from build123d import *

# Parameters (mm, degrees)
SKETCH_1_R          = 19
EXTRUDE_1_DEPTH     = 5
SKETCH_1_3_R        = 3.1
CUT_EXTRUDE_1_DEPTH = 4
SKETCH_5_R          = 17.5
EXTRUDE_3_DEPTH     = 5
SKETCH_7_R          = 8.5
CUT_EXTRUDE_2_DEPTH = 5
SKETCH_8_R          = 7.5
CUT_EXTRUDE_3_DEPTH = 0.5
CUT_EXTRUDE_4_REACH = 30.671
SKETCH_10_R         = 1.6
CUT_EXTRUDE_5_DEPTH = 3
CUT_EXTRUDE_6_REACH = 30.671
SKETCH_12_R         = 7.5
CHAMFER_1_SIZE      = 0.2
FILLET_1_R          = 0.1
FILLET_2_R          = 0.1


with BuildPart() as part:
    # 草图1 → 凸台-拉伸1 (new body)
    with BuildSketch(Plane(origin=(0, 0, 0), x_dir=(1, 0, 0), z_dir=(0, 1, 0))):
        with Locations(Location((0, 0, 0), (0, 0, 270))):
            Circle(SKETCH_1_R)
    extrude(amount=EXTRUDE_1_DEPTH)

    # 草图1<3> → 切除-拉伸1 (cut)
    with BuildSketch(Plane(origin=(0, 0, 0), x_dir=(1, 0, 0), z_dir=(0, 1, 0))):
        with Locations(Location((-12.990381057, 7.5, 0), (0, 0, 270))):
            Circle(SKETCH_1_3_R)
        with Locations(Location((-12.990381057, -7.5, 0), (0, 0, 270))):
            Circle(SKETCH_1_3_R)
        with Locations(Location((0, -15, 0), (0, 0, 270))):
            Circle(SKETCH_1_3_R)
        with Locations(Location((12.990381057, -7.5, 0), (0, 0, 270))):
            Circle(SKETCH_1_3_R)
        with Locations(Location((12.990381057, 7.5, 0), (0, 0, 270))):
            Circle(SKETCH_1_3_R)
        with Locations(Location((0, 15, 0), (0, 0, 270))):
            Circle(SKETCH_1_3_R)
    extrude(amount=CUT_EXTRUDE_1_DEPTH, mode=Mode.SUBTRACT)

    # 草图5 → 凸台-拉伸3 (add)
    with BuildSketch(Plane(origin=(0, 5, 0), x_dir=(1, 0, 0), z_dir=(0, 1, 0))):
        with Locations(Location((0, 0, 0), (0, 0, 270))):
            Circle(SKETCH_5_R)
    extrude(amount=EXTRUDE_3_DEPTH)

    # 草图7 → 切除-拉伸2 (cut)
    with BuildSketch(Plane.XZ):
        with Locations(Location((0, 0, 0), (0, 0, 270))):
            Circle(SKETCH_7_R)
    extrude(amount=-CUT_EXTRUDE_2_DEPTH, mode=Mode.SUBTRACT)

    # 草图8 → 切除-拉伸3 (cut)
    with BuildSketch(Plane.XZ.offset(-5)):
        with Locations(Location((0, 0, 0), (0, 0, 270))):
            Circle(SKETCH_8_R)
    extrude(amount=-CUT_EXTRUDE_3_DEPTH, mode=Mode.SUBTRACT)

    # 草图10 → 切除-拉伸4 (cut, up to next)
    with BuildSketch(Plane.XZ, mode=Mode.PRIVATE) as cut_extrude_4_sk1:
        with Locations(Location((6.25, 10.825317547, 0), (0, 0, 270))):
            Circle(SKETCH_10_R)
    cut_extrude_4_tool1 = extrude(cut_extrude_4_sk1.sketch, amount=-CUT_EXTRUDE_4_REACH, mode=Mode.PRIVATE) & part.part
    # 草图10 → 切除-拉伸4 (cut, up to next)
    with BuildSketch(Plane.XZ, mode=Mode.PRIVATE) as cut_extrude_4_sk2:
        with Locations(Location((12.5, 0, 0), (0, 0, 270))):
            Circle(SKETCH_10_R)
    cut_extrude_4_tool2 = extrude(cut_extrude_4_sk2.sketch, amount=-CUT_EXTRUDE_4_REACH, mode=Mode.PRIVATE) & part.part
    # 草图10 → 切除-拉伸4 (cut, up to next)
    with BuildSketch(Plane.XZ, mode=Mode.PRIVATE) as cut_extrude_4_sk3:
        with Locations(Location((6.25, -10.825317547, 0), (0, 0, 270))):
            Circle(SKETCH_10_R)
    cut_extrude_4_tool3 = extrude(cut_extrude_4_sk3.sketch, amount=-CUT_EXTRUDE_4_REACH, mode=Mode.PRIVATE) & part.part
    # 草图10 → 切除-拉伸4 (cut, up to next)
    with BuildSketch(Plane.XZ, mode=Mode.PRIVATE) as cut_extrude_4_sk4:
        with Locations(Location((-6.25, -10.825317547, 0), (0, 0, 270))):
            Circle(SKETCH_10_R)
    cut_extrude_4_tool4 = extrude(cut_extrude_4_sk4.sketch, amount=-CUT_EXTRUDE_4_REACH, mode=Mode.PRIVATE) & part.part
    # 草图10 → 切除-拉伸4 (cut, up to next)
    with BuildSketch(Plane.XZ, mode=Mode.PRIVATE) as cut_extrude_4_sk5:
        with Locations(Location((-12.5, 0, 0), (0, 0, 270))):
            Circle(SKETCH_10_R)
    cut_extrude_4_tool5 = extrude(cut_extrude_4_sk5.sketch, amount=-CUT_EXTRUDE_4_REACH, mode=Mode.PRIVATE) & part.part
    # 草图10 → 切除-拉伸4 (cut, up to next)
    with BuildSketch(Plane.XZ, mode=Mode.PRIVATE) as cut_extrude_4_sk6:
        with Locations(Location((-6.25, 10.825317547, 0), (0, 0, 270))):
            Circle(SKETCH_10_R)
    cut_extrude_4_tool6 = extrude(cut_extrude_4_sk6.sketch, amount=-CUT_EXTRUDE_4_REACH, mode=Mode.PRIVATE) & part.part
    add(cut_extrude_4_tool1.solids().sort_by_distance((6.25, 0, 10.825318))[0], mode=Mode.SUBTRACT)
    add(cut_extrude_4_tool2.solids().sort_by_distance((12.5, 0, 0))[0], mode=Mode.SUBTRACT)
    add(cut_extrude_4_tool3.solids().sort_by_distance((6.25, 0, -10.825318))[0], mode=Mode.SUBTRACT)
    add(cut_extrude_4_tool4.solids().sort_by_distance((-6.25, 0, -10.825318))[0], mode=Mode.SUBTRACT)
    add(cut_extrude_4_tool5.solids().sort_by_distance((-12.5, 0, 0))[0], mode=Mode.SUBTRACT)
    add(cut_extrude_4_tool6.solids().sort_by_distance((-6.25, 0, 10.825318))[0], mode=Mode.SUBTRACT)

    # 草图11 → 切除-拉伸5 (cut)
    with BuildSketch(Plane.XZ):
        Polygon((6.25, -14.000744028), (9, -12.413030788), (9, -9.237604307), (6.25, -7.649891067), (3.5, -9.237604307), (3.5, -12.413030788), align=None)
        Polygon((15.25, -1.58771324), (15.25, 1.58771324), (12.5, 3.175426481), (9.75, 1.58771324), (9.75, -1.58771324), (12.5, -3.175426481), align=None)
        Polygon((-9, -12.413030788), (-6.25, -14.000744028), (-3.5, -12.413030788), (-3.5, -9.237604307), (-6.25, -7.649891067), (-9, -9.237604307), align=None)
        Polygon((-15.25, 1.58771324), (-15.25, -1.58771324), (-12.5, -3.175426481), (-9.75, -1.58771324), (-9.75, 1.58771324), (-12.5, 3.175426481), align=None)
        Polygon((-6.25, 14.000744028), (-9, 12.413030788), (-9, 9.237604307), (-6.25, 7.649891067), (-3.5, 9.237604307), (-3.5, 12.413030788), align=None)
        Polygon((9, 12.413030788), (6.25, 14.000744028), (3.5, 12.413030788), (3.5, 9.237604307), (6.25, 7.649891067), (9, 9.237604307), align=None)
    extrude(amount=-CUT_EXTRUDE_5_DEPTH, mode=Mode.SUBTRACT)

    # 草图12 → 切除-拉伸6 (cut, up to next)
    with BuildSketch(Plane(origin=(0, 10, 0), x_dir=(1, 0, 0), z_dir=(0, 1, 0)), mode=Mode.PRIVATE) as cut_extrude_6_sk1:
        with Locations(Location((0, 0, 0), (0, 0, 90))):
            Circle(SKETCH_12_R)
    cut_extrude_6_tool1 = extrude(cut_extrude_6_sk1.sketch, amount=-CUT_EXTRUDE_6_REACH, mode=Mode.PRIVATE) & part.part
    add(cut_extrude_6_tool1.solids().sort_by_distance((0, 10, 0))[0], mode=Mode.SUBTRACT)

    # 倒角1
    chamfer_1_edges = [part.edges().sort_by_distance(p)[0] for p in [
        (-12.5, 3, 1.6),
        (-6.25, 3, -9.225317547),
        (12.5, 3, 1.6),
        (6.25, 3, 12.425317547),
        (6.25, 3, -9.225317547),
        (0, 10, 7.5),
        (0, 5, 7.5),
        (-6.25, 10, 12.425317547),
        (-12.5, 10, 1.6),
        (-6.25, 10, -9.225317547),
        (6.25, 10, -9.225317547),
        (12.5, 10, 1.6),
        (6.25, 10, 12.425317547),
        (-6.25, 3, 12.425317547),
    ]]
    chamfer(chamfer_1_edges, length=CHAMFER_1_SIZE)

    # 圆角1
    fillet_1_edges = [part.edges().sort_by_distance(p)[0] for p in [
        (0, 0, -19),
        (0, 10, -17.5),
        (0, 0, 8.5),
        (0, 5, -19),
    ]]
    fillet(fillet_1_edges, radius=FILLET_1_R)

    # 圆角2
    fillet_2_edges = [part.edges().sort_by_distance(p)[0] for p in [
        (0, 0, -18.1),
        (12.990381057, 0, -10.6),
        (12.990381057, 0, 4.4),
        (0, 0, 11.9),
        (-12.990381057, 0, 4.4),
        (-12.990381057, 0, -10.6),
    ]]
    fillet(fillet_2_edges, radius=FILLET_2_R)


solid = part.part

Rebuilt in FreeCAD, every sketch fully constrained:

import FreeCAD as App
import Part
import Sketcher

V = App.Vector
Q = App.Units.Quantity


def edges_at(feature, points):
    """Names of the edges that pass closest to the given points."""
    edges = feature.Shape.Edges
    near = lambda p: min(range(len(edges)), key=lambda i: edges[i].distToShape(Part.Vertex(*p))[0])
    return sorted({f"Edge{near(p) + 1}" for p in points})

doc = App.newDocument("Part")
body = doc.addObject("PartDesign::Body", "Body")

# Sketch on XZ plane
sketch1 = doc.addObject("Sketcher::SketchObject", "Sketch")
body.addObject(sketch1)
sketch1.AttachmentSupport = (doc.XZ_Plane, [""])
sketch1.MapMode = "FlatFace"
sketch1.addGeometry(Part.Circle(V(0, 0, 0), V(0, 0, 1), 19), False)
sketch1.addConstraint(Sketcher.Constraint("Coincident", 0, 3, -1, 1))
sketch1.addConstraint(Sketcher.Constraint("Diameter", 0, Q("38 mm")))
pad1 = doc.addObject("PartDesign::Pad", "Pad")
body.addObject(pad1)
pad1.Profile = sketch1
pad1.Length = 5
pad1.Reversed = True

# Sketch on XZ plane
sketch2 = doc.addObject("Sketcher::SketchObject", "Sketch001")
body.addObject(sketch2)
sketch2.AttachmentSupport = (doc.XZ_Plane, [""])
sketch2.MapMode = "FlatFace"
sketch2.addGeometry(Part.Circle(V(-12.990381, -7.5, 0), V(0, 0, 1), 3.1), False)
sketch2.addGeometry(Part.Circle(V(-12.990381, 7.5, 0), V(0, 0, 1), 3.1), False)
sketch2.addGeometry(Part.Circle(V(0, 15, 0), V(0, 0, 1), 3.1), False)
sketch2.addGeometry(Part.Circle(V(12.990381, 7.5, 0), V(0, 0, 1), 3.1), False)
sketch2.addGeometry(Part.Circle(V(12.990381, -7.5, 0), V(0, 0, 1), 3.1), False)
sketch2.addGeometry(Part.Circle(V(0, -15, 0), V(0, 0, 1), 3.1), False)
sketch2.addConstraint(Sketcher.Constraint("Equal", 0, 1))
sketch2.addConstraint(Sketcher.Constraint("Equal", 1, 2))
sketch2.addConstraint(Sketcher.Constraint("Equal", 2, 3))
sketch2.addConstraint(Sketcher.Constraint("Equal", 3, 4))
sketch2.addConstraint(Sketcher.Constraint("Equal", 4, 5))
sketch2.addConstraint(Sketcher.Constraint("Symmetric", 0, 3, 3, 3, -1, 1))
sketch2.addConstraint(Sketcher.Constraint("Symmetric", 1, 3, 4, 3, -1, 1))
sketch2.addConstraint(Sketcher.Constraint("Symmetric", 2, 3, 5, 3, -1, 1))
sketch2.addConstraint(Sketcher.Constraint("Symmetric", 1, 3, 3, 3, -2))
sketch2.addConstraint(Sketcher.Constraint("PointOnObject", 2, 3, -2))
sketch2.addConstraint(Sketcher.Constraint("Diameter", 0, Q("6.2 mm")))
sketch2.addConstraint(Sketcher.Constraint("DistanceY", -1, 1, 2, 3, Q("15 mm")))
sketch2.addConstraint(Sketcher.Constraint("DistanceY", 0, 3, 1, 3, Q("15 mm")))
sketch2.addConstraint(Sketcher.Constraint("DistanceX", 0, 3, -1, 1, Q("12.990381 mm")))
pocket1 = doc.addObject("PartDesign::Pocket", "Pocket")
body.addObject(pocket1)
pocket1.Profile = sketch2
pocket1.Length = 4

# Sketch on XZ plane
sketch3 = doc.addObject("Sketcher::SketchObject", "Sketch002")
body.addObject(sketch3)
sketch3.AttachmentSupport = (doc.XZ_Plane, [""])
sketch3.MapMode = "FlatFace"
sketch3.AttachmentOffset = App.Placement(V(0, 0, -5), App.Rotation())
sketch3.addGeometry(Part.Circle(V(0, 0, 0), V(0, 0, 1), 17.5), False)
sketch3.addConstraint(Sketcher.Constraint("Coincident", 0, 3, -1, 1))
sketch3.addConstraint(Sketcher.Constraint("Diameter", 0, Q("35 mm")))
pad2 = doc.addObject("PartDesign::Pad", "Pad001")
body.addObject(pad2)
pad2.Profile = sketch3
pad2.Length = 5
pad2.Reversed = True

# Sketch on XZ plane
sketch4 = doc.addObject("Sketcher::SketchObject", "Sketch003")
body.addObject(sketch4)
sketch4.AttachmentSupport = (doc.XZ_Plane, [""])
sketch4.MapMode = "FlatFace"
sketch4.addGeometry(Part.Circle(V(0, 0, 0), V(0, 0, 1), 8.5), False)
sketch4.addConstraint(Sketcher.Constraint("Coincident", 0, 3, -1, 1))
sketch4.addConstraint(Sketcher.Constraint("Diameter", 0, Q("17 mm")))
pocket2 = doc.addObject("PartDesign::Pocket", "Pocket001")
body.addObject(pocket2)
pocket2.Profile = sketch4
pocket2.Length = 5

# Sketch on XZ plane
sketch5 = doc.addObject("Sketcher::SketchObject", "Sketch004")
body.addObject(sketch5)
sketch5.AttachmentSupport = (doc.XZ_Plane, [""])
sketch5.MapMode = "FlatFace"
sketch5.AttachmentOffset = App.Placement(V(0, 0, -5), App.Rotation())
sketch5.addGeometry(Part.Circle(V(0, 0, 0), V(0, 0, 1), 7.5), False)
sketch5.addConstraint(Sketcher.Constraint("Coincident", 0, 3, -1, 1))
sketch5.addConstraint(Sketcher.Constraint("Diameter", 0, Q("15 mm")))
pocket3 = doc.addObject("PartDesign::Pocket", "Pocket002")
body.addObject(pocket3)
pocket3.Profile = sketch5
pocket3.Length = 0.5

# Sketch on XZ plane
sketch6 = doc.addObject("Sketcher::SketchObject", "Sketch005")
body.addObject(sketch6)
sketch6.AttachmentSupport = (doc.XZ_Plane, [""])
sketch6.MapMode = "FlatFace"
sketch6.addGeometry(Part.Circle(V(6.25, 10.825318, 0), V(0, 0, 1), 1.6), False)
sketch6.addConstraint(Sketcher.Constraint("Diameter", 0, Q("3.2 mm")))
sketch6.addConstraint(Sketcher.Constraint("DistanceX", -1, 1, 0, 3, Q("6.25 mm")))
sketch6.addConstraint(Sketcher.Constraint("DistanceY", -1, 1, 0, 3, Q("10.825318 mm")))
pocket4 = doc.addObject("PartDesign::Pocket", "Pocket003")
body.addObject(pocket4)
pocket4.Profile = sketch6
pocket4.Type = "UpToFirst"

# Sketch on XZ plane
sketch7 = doc.addObject("Sketcher::SketchObject", "Sketch006")
body.addObject(sketch7)
sketch7.AttachmentSupport = (doc.XZ_Plane, [""])
sketch7.MapMode = "FlatFace"
sketch7.addGeometry(Part.Circle(V(12.5, 0, 0), V(0, 0, 1), 1.6), False)
sketch7.addConstraint(Sketcher.Constraint("PointOnObject", 0, 3, -1))
sketch7.addConstraint(Sketcher.Constraint("Diameter", 0, Q("3.2 mm")))
sketch7.addConstraint(Sketcher.Constraint("DistanceX", -1, 1, 0, 3, Q("12.5 mm")))
pocket5 = doc.addObject("PartDesign::Pocket", "Pocket004")
body.addObject(pocket5)
pocket5.Profile = sketch7
pocket5.Type = "UpToFirst"

# Sketch on XZ plane
sketch8 = doc.addObject("Sketcher::SketchObject", "Sketch007")
body.addObject(sketch8)
sketch8.AttachmentSupport = (doc.XZ_Plane, [""])
sketch8.MapMode = "FlatFace"
sketch8.addGeometry(Part.Circle(V(6.25, -10.825318, 0), V(0, 0, 1), 1.6), False)
sketch8.addConstraint(Sketcher.Constraint("Diameter", 0, Q("3.2 mm")))
sketch8.addConstraint(Sketcher.Constraint("DistanceX", -1, 1, 0, 3, Q("6.25 mm")))
sketch8.addConstraint(Sketcher.Constraint("DistanceY", 0, 3, -1, 1, Q("10.825318 mm")))
pocket6 = doc.addObject("PartDesign::Pocket", "Pocket005")
body.addObject(pocket6)
pocket6.Profile = sketch8
pocket6.Type = "UpToFirst"

# Sketch on XZ plane
sketch9 = doc.addObject("Sketcher::SketchObject", "Sketch008")
body.addObject(sketch9)
sketch9.AttachmentSupport = (doc.XZ_Plane, [""])
sketch9.MapMode = "FlatFace"
sketch9.addGeometry(Part.Circle(V(-6.25, -10.825318, 0), V(0, 0, 1), 1.6), False)
sketch9.addConstraint(Sketcher.Constraint("Diameter", 0, Q("3.2 mm")))
sketch9.addConstraint(Sketcher.Constraint("DistanceX", 0, 3, -1, 1, Q("6.25 mm")))
sketch9.addConstraint(Sketcher.Constraint("DistanceY", 0, 3, -1, 1, Q("10.825318 mm")))
pocket7 = doc.addObject("PartDesign::Pocket", "Pocket006")
body.addObject(pocket7)
pocket7.Profile = sketch9
pocket7.Type = "UpToFirst"

# Sketch on XZ plane
sketch10 = doc.addObject("Sketcher::SketchObject", "Sketch009")
body.addObject(sketch10)
sketch10.AttachmentSupport = (doc.XZ_Plane, [""])
sketch10.MapMode = "FlatFace"
sketch10.addGeometry(Part.Circle(V(-12.5, 0, 0), V(0, 0, 1), 1.6), False)
sketch10.addConstraint(Sketcher.Constraint("PointOnObject", 0, 3, -1))
sketch10.addConstraint(Sketcher.Constraint("Diameter", 0, Q("3.2 mm")))
sketch10.addConstraint(Sketcher.Constraint("DistanceX", 0, 3, -1, 1, Q("12.5 mm")))
pocket8 = doc.addObject("PartDesign::Pocket", "Pocket007")
body.addObject(pocket8)
pocket8.Profile = sketch10
pocket8.Type = "UpToFirst"

# Sketch on XZ plane
sketch11 = doc.addObject("Sketcher::SketchObject", "Sketch010")
body.addObject(sketch11)
sketch11.AttachmentSupport = (doc.XZ_Plane, [""])
sketch11.MapMode = "FlatFace"
sketch11.addGeometry(Part.Circle(V(-6.25, 10.825318, 0), V(0, 0, 1), 1.6), False)
sketch11.addConstraint(Sketcher.Constraint("Diameter", 0, Q("3.2 mm")))
sketch11.addConstraint(Sketcher.Constraint("DistanceX", 0, 3, -1, 1, Q("6.25 mm")))
sketch11.addConstraint(Sketcher.Constraint("DistanceY", -1, 1, 0, 3, Q("10.825318 mm")))
pocket9 = doc.addObject("PartDesign::Pocket", "Pocket008")
body.addObject(pocket9)
pocket9.Profile = sketch11
pocket9.Type = "UpToFirst"

# Sketch on XZ plane
sketch12 = doc.addObject("Sketcher::SketchObject", "Sketch011")
body.addObject(sketch12)
sketch12.AttachmentSupport = (doc.XZ_Plane, [""])
sketch12.MapMode = "FlatFace"
sketch12.addGeometry(Part.LineSegment(V(6.25, -14.000744, 0), V(9, -12.413031, 0)), False)
sketch12.addGeometry(Part.LineSegment(V(9, -12.413031, 0), V(9, -9.237604, 0)), False)
sketch12.addGeometry(Part.LineSegment(V(9, -9.237604, 0), V(6.25, -7.649891, 0)), False)
sketch12.addGeometry(Part.LineSegment(V(6.25, -7.649891, 0), V(3.5, -9.237604, 0)), False)
sketch12.addGeometry(Part.LineSegment(V(3.5, -9.237604, 0), V(3.5, -12.413031, 0)), False)
sketch12.addGeometry(Part.LineSegment(V(3.5, -12.413031, 0), V(6.25, -14.000744, 0)), False)
sketch12.addGeometry(Part.LineSegment(V(15.25, -1.587713, 0), V(15.25, 1.587713, 0)), False)
sketch12.addGeometry(Part.LineSegment(V(15.25, 1.587713, 0), V(12.5, 3.175426, 0)), False)
sketch12.addGeometry(Part.LineSegment(V(12.5, 3.175426, 0), V(9.75, 1.587713, 0)), False)
sketch12.addGeometry(Part.LineSegment(V(9.75, 1.587713, 0), V(9.75, -1.587713, 0)), False)
sketch12.addGeometry(Part.LineSegment(V(9.75, -1.587713, 0), V(12.5, -3.175426, 0)), False)
sketch12.addGeometry(Part.LineSegment(V(12.5, -3.175426, 0), V(15.25, -1.587713, 0)), False)
sketch12.addGeometry(Part.LineSegment(V(-9, -12.413031, 0), V(-6.25, -14.000744, 0)), False)
sketch12.addGeometry(Part.LineSegment(V(-6.25, -14.000744, 0), V(-3.5, -12.413031, 0)), False)
sketch12.addGeometry(Part.LineSegment(V(-3.5, -12.413031, 0), V(-3.5, -9.237604, 0)), False)
sketch12.addGeometry(Part.LineSegment(V(-3.5, -9.237604, 0), V(-6.25, -7.649891, 0)), False)
sketch12.addGeometry(Part.LineSegment(V(-6.25, -7.649891, 0), V(-9, -9.237604, 0)), False)
sketch12.addGeometry(Part.LineSegment(V(-9, -9.237604, 0), V(-9, -12.413031, 0)), False)
sketch12.addGeometry(Part.LineSegment(V(-15.25, 1.587713, 0), V(-15.25, -1.587713, 0)), False)
sketch12.addGeometry(Part.LineSegment(V(-15.25, -1.587713, 0), V(-12.5, -3.175426, 0)), False)
sketch12.addGeometry(Part.LineSegment(V(-12.5, -3.175426, 0), V(-9.75, -1.587713, 0)), False)
sketch12.addGeometry(Part.LineSegment(V(-9.75, -1.587713, 0), V(-9.75, 1.587713, 0)), False)
sketch12.addGeometry(Part.LineSegment(V(-9.75, 1.587713, 0), V(-12.5, 3.175426, 0)), False)
sketch12.addGeometry(Part.LineSegment(V(-12.5, 3.175426, 0), V(-15.25, 1.587713, 0)), False)
sketch12.addGeometry(Part.LineSegment(V(-6.25, 14.000744, 0), V(-9, 12.413031, 0)), False)
sketch12.addGeometry(Part.LineSegment(V(-9, 12.413031, 0), V(-9, 9.237604, 0)), False)
sketch12.addGeometry(Part.LineSegment(V(-9, 9.237604, 0), V(-6.25, 7.649891, 0)), False)
sketch12.addGeometry(Part.LineSegment(V(-6.25, 7.649891, 0), V(-3.5, 9.237604, 0)), False)
sketch12.addGeometry(Part.LineSegment(V(-3.5, 9.237604, 0), V(-3.5, 12.413031, 0)), False)
sketch12.addGeometry(Part.LineSegment(V(-3.5, 12.413031, 0), V(-6.25, 14.000744, 0)), False)
sketch12.addGeometry(Part.LineSegment(V(9, 12.413031, 0), V(6.25, 14.000744, 0)), False)
sketch12.addGeometry(Part.LineSegment(V(6.25, 14.000744, 0), V(3.5, 12.413031, 0)), False)
sketch12.addGeometry(Part.LineSegment(V(3.5, 12.413031, 0), V(3.5, 9.237604, 0)), False)
sketch12.addGeometry(Part.LineSegment(V(3.5, 9.237604, 0), V(6.25, 7.649891, 0)), False)
sketch12.addGeometry(Part.LineSegment(V(6.25, 7.649891, 0), V(9, 9.237604, 0)), False)
sketch12.addGeometry(Part.LineSegment(V(9, 9.237604, 0), V(9, 12.413031, 0)), False)
sketch12.addConstraint(Sketcher.Constraint("Coincident", 0, 2, 1, 1))
sketch12.addConstraint(Sketcher.Constraint("Coincident", 1, 2, 2, 1))
sketch12.addConstraint(Sketcher.Constraint("Coincident", 2, 2, 3, 1))
sketch12.addConstraint(Sketcher.Constraint("Coincident", 3, 2, 4, 1))
sketch12.addConstraint(Sketcher.Constraint("Coincident", 4, 2, 5, 1))
sketch12.addConstraint(Sketcher.Constraint("Coincident", 5, 2, 0, 1))
sketch12.addConstraint(Sketcher.Constraint("Coincident", 6, 2, 7, 1))
sketch12.addConstraint(Sketcher.Constraint("Coincident", 7, 2, 8, 1))
sketch12.addConstraint(Sketcher.Constraint("Coincident", 8, 2, 9, 1))
sketch12.addConstraint(Sketcher.Constraint("Coincident", 9, 2, 10, 1))
sketch12.addConstraint(Sketcher.Constraint("Coincident", 10, 2, 11, 1))
sketch12.addConstraint(Sketcher.Constraint("Coincident", 11, 2, 6, 1))
sketch12.addConstraint(Sketcher.Constraint("Coincident", 12, 2, 13, 1))
sketch12.addConstraint(Sketcher.Constraint("Coincident", 13, 2, 14, 1))
sketch12.addConstraint(Sketcher.Constraint("Coincident", 14, 2, 15, 1))
sketch12.addConstraint(Sketcher.Constraint("Coincident", 15, 2, 16, 1))
sketch12.addConstraint(Sketcher.Constraint("Coincident", 16, 2, 17, 1))
sketch12.addConstraint(Sketcher.Constraint("Coincident", 17, 2, 12, 1))
sketch12.addConstraint(Sketcher.Constraint("Coincident", 18, 2, 19, 1))
sketch12.addConstraint(Sketcher.Constraint("Coincident", 19, 2, 20, 1))
sketch12.addConstraint(Sketcher.Constraint("Coincident", 20, 2, 21, 1))
sketch12.addConstraint(Sketcher.Constraint("Coincident", 21, 2, 22, 1))
sketch12.addConstraint(Sketcher.Constraint("Coincident", 22, 2, 23, 1))
sketch12.addConstraint(Sketcher.Constraint("Coincident", 23, 2, 18, 1))
sketch12.addConstraint(Sketcher.Constraint("Coincident", 24, 2, 25, 1))
sketch12.addConstraint(Sketcher.Constraint("Coincident", 25, 2, 26, 1))
sketch12.addConstraint(Sketcher.Constraint("Coincident", 26, 2, 27, 1))
sketch12.addConstraint(Sketcher.Constraint("Coincident", 27, 2, 28, 1))
sketch12.addConstraint(Sketcher.Constraint("Coincident", 28, 2, 29, 1))
sketch12.addConstraint(Sketcher.Constraint("Coincident", 29, 2, 24, 1))
sketch12.addConstraint(Sketcher.Constraint("Coincident", 30, 2, 31, 1))
sketch12.addConstraint(Sketcher.Constraint("Coincident", 31, 2, 32, 1))
sketch12.addConstraint(Sketcher.Constraint("Coincident", 32, 2, 33, 1))
sketch12.addConstraint(Sketcher.Constraint("Coincident", 33, 2, 34, 1))
sketch12.addConstraint(Sketcher.Constraint("Coincident", 34, 2, 35, 1))
sketch12.addConstraint(Sketcher.Constraint("Coincident", 35, 2, 30, 1))
sketch12.addConstraint(Sketcher.Constraint("Vertical", 1))
sketch12.addConstraint(Sketcher.Constraint("Vertical", 4))
sketch12.addConstraint(Sketcher.Constraint("Vertical", 6))
sketch12.addConstraint(Sketcher.Constraint("Vertical", 9))
sketch12.addConstraint(Sketcher.Constraint("Vertical", 14))
sketch12.addConstraint(Sketcher.Constraint("Vertical", 17))
sketch12.addConstraint(Sketcher.Constraint("Vertical", 18))
sketch12.addConstraint(Sketcher.Constraint("Vertical", 21))
sketch12.addConstraint(Sketcher.Constraint("Vertical", 25))
sketch12.addConstraint(Sketcher.Constraint("Vertical", 28))
sketch12.addConstraint(Sketcher.Constraint("Vertical", 32))
sketch12.addConstraint(Sketcher.Constraint("Vertical", 35))
sketch12.addConstraint(Sketcher.Constraint("Symmetric", 6, 2, 18, 2, -1, 1))
sketch12.addConstraint(Sketcher.Constraint("Symmetric", 7, 2, 19, 2, -1, 1))
sketch12.addConstraint(Sketcher.Constraint("Symmetric", 8, 2, 20, 2, -1, 1))
sketch12.addConstraint(Sketcher.Constraint("Symmetric", 10, 2, 22, 2, -1, 1))
sketch12.addConstraint(Sketcher.Constraint("Symmetric", 0, 2, 24, 2, -1, 1))
sketch12.addConstraint(Sketcher.Constraint("Symmetric", 2, 2, 26, 2, -1, 1))
sketch12.addConstraint(Sketcher.Constraint("Symmetric", 3, 2, 27, 2, -1, 1))
sketch12.addConstraint(Sketcher.Constraint("Symmetric", 5, 2, 29, 2, -1, 1))
sketch12.addConstraint(Sketcher.Constraint("Symmetric", 12, 2, 30, 2, -1, 1))
sketch12.addConstraint(Sketcher.Constraint("Symmetric", 13, 2, 31, 2, -1, 1))
sketch12.addConstraint(Sketcher.Constraint("Symmetric", 15, 2, 33, 2, -1, 1))
sketch12.addConstraint(Sketcher.Constraint("Symmetric", 16, 2, 34, 2, -1, 1))
sketch12.addConstraint(Sketcher.Constraint("Symmetric", 5, 2, 12, 2, -2))
sketch12.addConstraint(Sketcher.Constraint("Symmetric", 4, 2, 13, 2, -2))
sketch12.addConstraint(Sketcher.Constraint("Symmetric", 2, 2, 15, 2, -2))
sketch12.addConstraint(Sketcher.Constraint("Symmetric", 1, 2, 16, 2, -2))
sketch12.addConstraint(Sketcher.Constraint("Symmetric", 10, 2, 19, 2, -2))
sketch12.addConstraint(Sketcher.Constraint("Parallel", 0, 3))
sketch12.addConstraint(Sketcher.Constraint("Parallel", 2, 5))
sketch12.addConstraint(Sketcher.Constraint("Parallel", 5, 7))
sketch12.addConstraint(Sketcher.Constraint("Parallel", 3, 8))
sketch12.addConstraint(Sketcher.Constraint("Parallel", 7, 10))
sketch12.addConstraint(Sketcher.Constraint("Parallel", 8, 11))
sketch12.addConstraint(Sketcher.Constraint("Parallel", 10, 12))
sketch12.addConstraint(Sketcher.Constraint("Parallel", 11, 13))
sketch12.addConstraint(Sketcher.Constraint("Parallel", 12, 15))
sketch12.addConstraint(Sketcher.Constraint("Parallel", 19, 22))
sketch12.addConstraint(Sketcher.Constraint("Parallel", 20, 23))
sketch12.addConstraint(Sketcher.Constraint("Parallel", 22, 26))
sketch12.addConstraint(Sketcher.Constraint("Parallel", 26, 29))
sketch12.addConstraint(Sketcher.Constraint("Parallel", 29, 30))
sketch12.addConstraint(Sketcher.Constraint("Parallel", 30, 33))
sketch12.addConstraint(Sketcher.Constraint("Horizontal", 1, 2, 3, 2))
sketch12.addConstraint(Sketcher.Constraint("Horizontal", 0, 2, 4, 2))
sketch12.addConstraint(Sketcher.Constraint("Horizontal", 6, 2, 8, 2))
sketch12.addConstraint(Sketcher.Constraint("Equal", 4, 6))
sketch12.addConstraint(Sketcher.Constraint("Equal", 5, 7))
sketch12.addConstraint(Sketcher.Constraint("Angle", 0, Q("30 deg")))
sketch12.addConstraint(Sketcher.Constraint("DistanceX", -1, 1, 0, 2, Q("9 mm")))
sketch12.addConstraint(Sketcher.Constraint("DistanceX", 2, 2, 6, 2, Q("9 mm")))
sketch12.addConstraint(Sketcher.Constraint("DistanceX", 13, 2, 4, 2, Q("7 mm")))
sketch12.addConstraint(Sketcher.Constraint("DistanceY", 1, 1, 1, 2, Q("3.175426 mm")))
sketch12.addConstraint(Sketcher.Constraint("DistanceY", 0, 2, -1, 1, Q("12.413031 mm")))
pocket10 = doc.addObject("PartDesign::Pocket", "Pocket009")
body.addObject(pocket10)
pocket10.Profile = sketch12
pocket10.Length = 3

# Sketch on XZ plane
sketch13 = doc.addObject("Sketcher::SketchObject", "Sketch012")
body.addObject(sketch13)
sketch13.AttachmentSupport = (doc.XZ_Plane, [""])
sketch13.MapMode = "FlatFace"
sketch13.AttachmentOffset = App.Placement(V(0, 0, -10), App.Rotation())
sketch13.addGeometry(Part.Circle(V(0, 0, 0), V(0, 0, 1), 7.5), False)
sketch13.addConstraint(Sketcher.Constraint("Coincident", 0, 3, -1, 1))
sketch13.addConstraint(Sketcher.Constraint("Diameter", 0, Q("15 mm")))
pocket11 = doc.addObject("PartDesign::Pocket", "Pocket010")
body.addObject(pocket11)
pocket11.Profile = sketch13
pocket11.Type = "UpToFirst"
pocket11.Reversed = True
doc.recompute()

chamfer = doc.addObject("PartDesign::Chamfer", "Chamfer")
body.addObject(chamfer)
chamfer.Base = (pocket11, edges_at(pocket11, [
    (-12.5, 3, 1.6),
    (-6.25, 3, -9.225),
    (12.5, 3, 1.6),
    (6.25, 3, 12.425),
    (6.25, 3, -9.225),
    (0, 10, 7.5),
    (0, 5, 7.5),
    (-6.25, 10, 12.425),
    (-12.5, 10, 1.6),
    (-6.25, 10, -9.225),
    (6.25, 10, -9.225),
    (12.5, 10, 1.6),
    (6.25, 10, 12.425),
    (-6.25, 3, 12.425),
]))
chamfer.Size = 0.2
doc.recompute()

fillet = doc.addObject("PartDesign::Fillet", "Fillet")
body.addObject(fillet)
fillet.Base = (chamfer, edges_at(chamfer, [
    (0, 0, -19),
    (0, 10, -17.5),
    (0, 0, 8.5),
    (0, 5, -19),
]))
fillet.Radius = 0.1
doc.recompute()

fillet2 = doc.addObject("PartDesign::Fillet", "Fillet001")
body.addObject(fillet2)
fillet2.Base = (fillet, edges_at(fillet, [
    (0, 0, -18.1),
    (12.99, 0, -10.6),
    (12.99, 0, 4.4),
    (0, 0, 11.9),
    (-12.99, 0, 4.4),
    (-12.99, 0, -10.6),
]))
fillet2.Radius = 0.1

doc.recompute()
